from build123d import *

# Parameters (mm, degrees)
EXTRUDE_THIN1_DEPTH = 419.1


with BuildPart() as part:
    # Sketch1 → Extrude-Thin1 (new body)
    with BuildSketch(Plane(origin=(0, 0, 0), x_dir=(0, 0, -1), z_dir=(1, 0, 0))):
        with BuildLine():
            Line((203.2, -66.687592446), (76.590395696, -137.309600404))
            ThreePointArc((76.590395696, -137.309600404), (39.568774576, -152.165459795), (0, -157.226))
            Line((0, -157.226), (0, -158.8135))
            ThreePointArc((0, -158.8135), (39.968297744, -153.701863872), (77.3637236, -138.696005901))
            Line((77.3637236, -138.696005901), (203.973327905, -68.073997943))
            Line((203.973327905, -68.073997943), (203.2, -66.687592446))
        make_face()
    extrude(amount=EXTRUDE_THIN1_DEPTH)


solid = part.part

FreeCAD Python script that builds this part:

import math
import FreeCAD as App
import Part
import Sketcher

V = App.Vector
Q = App.Units.Quantity

doc = App.newDocument("Part")
body = doc.addObject("PartDesign::Body", "Body")

# Sketch on YZ plane
sketch1 = body.newObject("Sketcher::SketchObject", "Sketch")
sketch1.AttachmentSupport = (doc.getObject("YZ_Plane"), [""])
sketch1.MapMode = "FlatFace"
sketch1.addGeometry(Part.LineSegment(V(-66.687592, -203.2, 0), V(-137.3096, -76.590396, 0)), False)
sketch1.addGeometry(Part.ArcOfCircle(Part.Circle(V(0, 0, 0), V(0, 0, 1), 157.226), math.radians(180), math.radians(209.152492)), False)
sketch1.addGeometry(Part.LineSegment(V(-157.226, 0, 0), V(-158.8135, 0, 0)), False)
sketch1.addGeometry(Part.ArcOfCircle(Part.Circle(V(0, 0, 0), V(0, 0, 1), 158.8135), math.radians(180), math.radians(209.152492)), False)
sketch1.addGeometry(Part.LineSegment(V(-138.696006, -77.363724, 0), V(-68.073998, -203.973328, 0)), False)
sketch1.addGeometry(Part.LineSegment(V(-68.073998, -203.973328, 0), V(-66.687592, -203.2, 0)), False)
sketch1.addConstraint(Sketcher.Constraint("Tangent", 0, 2, 1, 2))
sketch1.addConstraint(Sketcher.Constraint("Coincident", 1, 1, 2, 1))
sketch1.addConstraint(Sketcher.Constraint("Coincident", 2, 2, 3, 1))
sketch1.addConstraint(Sketcher.Constraint("Tangent", 3, 2, 4, 1))
sketch1.addConstraint(Sketcher.Constraint("Coincident", 4, 2, 5, 1))
sketch1.addConstraint(Sketcher.Constraint("Coincident", 5, 2, 0, 1))
sketch1.addConstraint(Sketcher.Constraint("Horizontal", 2))
sketch1.addConstraint(Sketcher.Constraint("Coincident", 1, 3, -1, 1))
sketch1.addConstraint(Sketcher.Constraint("Coincident", 3, 3, -1, 1))
sketch1.addConstraint(Sketcher.Constraint("PointOnObject", 1, 1, -1))
sketch1.addConstraint(Sketcher.Constraint("Parallel", 0, 4))
sketch1.addConstraint(Sketcher.Constraint("Perpendicular", 4, 5))
sketch1.addConstraint(Sketcher.Constraint("Radius", 1, Q("6.19 in")))
sketch1.addConstraint(Sketcher.Constraint("DistanceY", 5, 2, -1, 1, Q("8 in")))
sketch1.addConstraint(Sketcher.Constraint("Radius", 3, Q("6.2525 in")))
sketch1.addConstraint(Sketcher.Constraint("DistanceX", 0, 2, -1, 1, Q("137.3096 mm")))
pad1 = body.newObject("PartDesign::Pad", "Pad")
pad1.Profile = sketch1
pad1.Length = Q("16.5 in")

doc.recompute()
